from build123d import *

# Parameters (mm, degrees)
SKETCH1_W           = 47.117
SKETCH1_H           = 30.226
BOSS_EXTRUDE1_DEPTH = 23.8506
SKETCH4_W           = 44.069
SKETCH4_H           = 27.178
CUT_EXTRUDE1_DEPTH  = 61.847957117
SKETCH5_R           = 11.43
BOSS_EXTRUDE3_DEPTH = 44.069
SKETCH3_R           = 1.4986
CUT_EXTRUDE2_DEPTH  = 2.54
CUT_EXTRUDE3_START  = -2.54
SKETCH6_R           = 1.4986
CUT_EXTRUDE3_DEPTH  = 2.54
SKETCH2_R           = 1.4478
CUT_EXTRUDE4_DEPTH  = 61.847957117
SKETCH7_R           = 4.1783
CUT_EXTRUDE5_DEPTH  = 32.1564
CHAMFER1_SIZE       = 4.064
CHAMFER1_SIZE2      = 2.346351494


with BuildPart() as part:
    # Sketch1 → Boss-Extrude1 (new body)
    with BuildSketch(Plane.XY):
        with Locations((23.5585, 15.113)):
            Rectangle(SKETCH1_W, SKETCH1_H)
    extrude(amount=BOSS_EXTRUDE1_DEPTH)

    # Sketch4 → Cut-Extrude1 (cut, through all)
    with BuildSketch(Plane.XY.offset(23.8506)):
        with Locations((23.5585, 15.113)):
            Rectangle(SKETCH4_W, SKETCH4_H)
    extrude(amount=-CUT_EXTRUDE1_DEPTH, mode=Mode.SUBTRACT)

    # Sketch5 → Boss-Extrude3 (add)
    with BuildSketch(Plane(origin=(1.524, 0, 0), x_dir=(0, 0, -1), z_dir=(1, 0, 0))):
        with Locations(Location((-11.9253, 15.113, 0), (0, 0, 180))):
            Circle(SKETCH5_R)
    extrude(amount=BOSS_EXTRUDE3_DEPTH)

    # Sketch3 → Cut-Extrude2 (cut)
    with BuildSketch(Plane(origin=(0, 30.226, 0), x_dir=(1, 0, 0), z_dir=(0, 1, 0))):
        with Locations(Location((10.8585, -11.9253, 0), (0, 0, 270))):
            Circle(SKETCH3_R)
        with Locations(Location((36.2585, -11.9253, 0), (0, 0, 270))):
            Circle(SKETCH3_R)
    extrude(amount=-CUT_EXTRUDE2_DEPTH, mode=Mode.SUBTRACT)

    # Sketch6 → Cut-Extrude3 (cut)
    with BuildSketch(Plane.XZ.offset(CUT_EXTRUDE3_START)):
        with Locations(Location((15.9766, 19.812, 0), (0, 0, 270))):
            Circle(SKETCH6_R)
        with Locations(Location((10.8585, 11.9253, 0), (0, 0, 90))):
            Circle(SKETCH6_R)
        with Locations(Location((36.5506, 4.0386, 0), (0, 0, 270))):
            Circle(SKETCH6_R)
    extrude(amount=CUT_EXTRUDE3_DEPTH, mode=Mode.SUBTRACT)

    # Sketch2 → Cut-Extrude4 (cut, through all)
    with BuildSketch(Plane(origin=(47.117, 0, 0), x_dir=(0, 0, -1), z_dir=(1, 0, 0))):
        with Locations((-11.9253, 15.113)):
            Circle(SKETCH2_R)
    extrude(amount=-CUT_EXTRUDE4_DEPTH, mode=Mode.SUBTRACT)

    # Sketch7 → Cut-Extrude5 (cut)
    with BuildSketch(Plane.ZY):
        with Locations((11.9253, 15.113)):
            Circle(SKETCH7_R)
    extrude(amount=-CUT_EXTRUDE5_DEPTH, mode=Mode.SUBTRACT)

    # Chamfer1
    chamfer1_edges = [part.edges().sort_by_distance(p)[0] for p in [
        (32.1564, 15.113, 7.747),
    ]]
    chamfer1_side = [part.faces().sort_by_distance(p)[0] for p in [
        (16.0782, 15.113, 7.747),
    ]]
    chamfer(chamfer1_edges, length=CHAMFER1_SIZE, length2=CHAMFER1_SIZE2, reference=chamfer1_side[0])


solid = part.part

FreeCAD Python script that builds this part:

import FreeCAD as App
import Part
import Sketcher
Q = App.Units.Quantity


def edges_at(feature, points):
    """Names of the edges that pass closest to the given points."""
    edges = feature.Shape.Edges
    near = lambda p: min(range(len(edges)), key=lambda i: edges[i].distToShape(Part.Vertex(*p))[0])
    return sorted({f"Edge{near(p) + 1}" for p in points})


def add_polygon(sketch, points):
    """Adds a closed chain of lines whose ends are joined by coincident constraints."""
    first, n = sketch.GeometryCount, len(points)
    for a, b in zip(points, points[1:] + points[:1]):
        sketch.addGeometry(Part.LineSegment(App.Vector(*a, 0), App.Vector(*b, 0)), False)
    for i in range(n):
        sketch.addConstraint(Sketcher.Constraint("Coincident", first + i, 2, first + (i + 1) % n, 1))

doc = App.newDocument("Part")
body = doc.addObject("PartDesign::Body", "Body")

# Sketch on XY plane
sketch1 = body.newObject("Sketcher::SketchObject", "Sketch")
sketch1.AttachmentSupport = (doc.getObject("XY_Plane"), [""])
sketch1.MapMode = "FlatFace"
add_polygon(sketch1, [(0, 30.226), (0, 0), (47.117, 0), (47.117, 30.226)])  # lines 0-3
sketch1.addConstraint(Sketcher.Constraint("Vertical", 0))
sketch1.addConstraint(Sketcher.Constraint("Horizontal", 1))
sketch1.addConstraint(Sketcher.Constraint("Vertical", 2))
sketch1.addConstraint(Sketcher.Constraint("Horizontal", 3))
sketch1.addConstraint(Sketcher.Constraint("Coincident", 0, 2, -1, 1))
sketch1.addConstraint(Sketcher.Constraint("DistanceY", 0, 2, 0, 1, Q("1.19 in")))
sketch1.addConstraint(Sketcher.Constraint("DistanceX", 1, 1, 1, 2, Q("1.855 in")))
pad1 = body.newObject("PartDesign::Pad", "Pad")
pad1.Profile = sketch1
pad1.Length = Q("0.939 in")

# Sketch on XY plane
sketch2 = body.newObject("Sketcher::SketchObject", "Sketch001")
sketch2.AttachmentSupport = (doc.getObject("XY_Plane"), [""])
sketch2.MapMode = "FlatFace"
sketch2.AttachmentOffset = App.Placement(App.Vector(0, 0, 0.939 * 25.4), App.Rotation())
add_polygon(sketch2, [(1.524, 28.702), (1.524, 1.524), (45.593, 1.524), (45.593, 28.702)])  # lines 0-3
sketch2.addConstraint(Sketcher.Constraint("Vertical", 0))
sketch2.addConstraint(Sketcher.Constraint("Horizontal", 1))
sketch2.addConstraint(Sketcher.Constraint("Vertical", 2))
sketch2.addConstraint(Sketcher.Constraint("Horizontal", 3))
sketch2.addConstraint(Sketcher.Constraint("DistanceY", 0, 2, 0, 1, Q("1.07 in")))
sketch2.addConstraint(Sketcher.Constraint("DistanceX", 1, 1, 1, 2, Q("1.735 in")))
sketch2.addConstraint(Sketcher.Constraint("DistanceX", -1, 1, 0, 2, Q("0.06 in")))
sketch2.addConstraint(Sketcher.Constraint("DistanceY", -1, 1, 0, 2, Q("0.06 in")))
pocket1 = body.newObject("PartDesign::Pocket", "Pocket")
pocket1.Profile = sketch2
pocket1.Type = "ThroughAll"

# Sketch on YZ plane
sketch3 = body.newObject("Sketcher::SketchObject", "Sketch002")
sketch3.AttachmentSupport = (doc.getObject("YZ_Plane"), [""])
sketch3.MapMode = "FlatFace"
sketch3.AttachmentOffset = App.Placement(App.Vector(0, 0, 0.06 * 25.4), App.Rotation())
sketch3.addGeometry(Part.Circle(App.Vector(15.113, 11.9253, 0), App.Vector(0, 0, 1), 11.43), False)
sketch3.addConstraint(Sketcher.Constraint("Diameter", 0, Q("0.9 in")))
sketch3.addConstraint(Sketcher.Constraint("DistanceX", -1, 1, 0, 3, Q("0.595 in")))
sketch3.addConstraint(Sketcher.Constraint("DistanceY", -1, 1, 0, 3, Q("0.4695 in")))
pad2 = body.newObject("PartDesign::Pad", "Pad001")
pad2.Profile = sketch3
pad2.Length = Q("1.735 in")

# Sketch on XZ plane
sketch4 = body.newObject("Sketcher::SketchObject", "Sketch003")
sketch4.AttachmentSupport = (doc.getObject("XZ_Plane"), [""])
sketch4.MapMode = "FlatFace"
sketch4.AttachmentOffset = App.Placement(App.Vector(0, 0, -1.19 * 25.4), App.Rotation())
sketch4.addGeometry(Part.Circle(App.Vector(10.8585, 11.9253, 0), App.Vector(0, 0, 1), 1.4986), False)
sketch4.addGeometry(Part.Circle(App.Vector(36.2585, 11.9253, 0), App.Vector(0, 0, 1), 1.4986), False)
sketch4.addConstraint(Sketcher.Constraint("Equal", 0, 1))
sketch4.addConstraint(Sketcher.Constraint("Horizontal", 0, 3, 1, 3))
sketch4.addConstraint(Sketcher.Constraint("Diameter", 0, Q("0.118 in")))
sketch4.addConstraint(Sketcher.Constraint("DistanceX", 0, 3, 1, 3, Q("1 in")))
sketch4.addConstraint(Sketcher.Constraint("DistanceX", -1, 1, 0, 3, Q("0.4275 in")))
sketch4.addConstraint(Sketcher.Constraint("DistanceY", -1, 1, 0, 3, Q("0.4695 in")))
pocket2 = body.newObject("PartDesign::Pocket", "Pocket001")
pocket2.Profile = sketch4
pocket2.Length = Q("0.1 in")
pocket2.Reversed = True

# Sketch on XZ plane
sketch5 = body.newObject("Sketcher::SketchObject", "Sketch004")
sketch5.AttachmentSupport = (doc.getObject("XZ_Plane"), [""])
sketch5.MapMode = "FlatFace"
sketch5.AttachmentOffset = App.Placement(App.Vector(0, 0, -0.1 * 25.4), App.Rotation())
sketch5.addGeometry(Part.Circle(App.Vector(15.9766, 19.812, 0), App.Vector(0, 0, 1), 1.4986), False)
sketch5.addGeometry(Part.Circle(App.Vector(10.8585, 11.9253, 0), App.Vector(0, 0, 1), 1.4986), False)
sketch5.addGeometry(Part.Circle(App.Vector(36.5506, 4.0386, 0), App.Vector(0, 0, 1), 1.4986), False)
sketch5.addConstraint(Sketcher.Constraint("Equal", 0, 1))
sketch5.addConstraint(Sketcher.Constraint("Equal", 1, 2))
sketch5.addConstraint(Sketcher.Constraint("Diameter", 0, Q("0.118 in")))
sketch5.addConstraint(Sketcher.Constraint("DistanceY", -1, 1, 0, 3, Q("0.78 in")))
sketch5.addConstraint(Sketcher.Constraint("DistanceX", 0, 3, 2, 3, Q("0.81 in")))
sketch5.addConstraint(Sketcher.Constraint("DistanceX", -1, 1, 0, 3, Q("0.629 in")))
sketch5.addConstraint(Sketcher.Constraint("DistanceY", -1, 1, 2, 3, Q("0.159 in")))
sketch5.addConstraint(Sketcher.Constraint("DistanceX", -1, 1, 1, 3, Q("0.4275 in")))
sketch5.addConstraint(Sketcher.Constraint("DistanceY", -1, 1, 1, 3, Q("0.4695 in")))
pocket3 = body.newObject("PartDesign::Pocket", "Pocket002")
pocket3.Profile = sketch5
pocket3.Length = Q("0.1 in")
pocket3.Reversed = True

# Sketch on YZ plane
sketch6 = body.newObject("Sketcher::SketchObject", "Sketch005")
sketch6.AttachmentSupport = (doc.getObject("YZ_Plane"), [""])
sketch6.MapMode = "FlatFace"
sketch6.AttachmentOffset = App.Placement(App.Vector(0, 0, 1.855 * 25.4), App.Rotation())
sketch6.addGeometry(Part.Circle(App.Vector(15.113, 11.9253, 0), App.Vector(0, 0, 1), 1.4478), False)
sketch6.addConstraint(Sketcher.Constraint("Diameter", 0, Q("0.114 in")))
sketch6.addConstraint(Sketcher.Constraint("DistanceX", -1, 1, 0, 3, Q("0.595 in")))
sketch6.addConstraint(Sketcher.Constraint("DistanceY", -1, 1, 0, 3, Q("0.4695 in")))
pocket4 = body.newObject("PartDesign::Pocket", "Pocket003")
pocket4.Profile = sketch6
pocket4.Type = "ThroughAll"

# Sketch on YZ plane
sketch7 = body.newObject("Sketcher::SketchObject", "Sketch006")
sketch7.AttachmentSupport = (doc.getObject("YZ_Plane"), [""])
sketch7.MapMode = "FlatFace"
sketch7.addGeometry(Part.Circle(App.Vector(15.113, 11.9253, 0), App.Vector(0, 0, 1), 4.1783), False)
sketch7.addConstraint(Sketcher.Constraint("Diameter", 0, Q("0.329 in")))
sketch7.addConstraint(Sketcher.Constraint("DistanceX", -1, 1, 0, 3, Q("0.595 in")))
sketch7.addConstraint(Sketcher.Constraint("DistanceY", -1, 1, 0, 3, Q("0.4695 in")))
pocket5 = body.newObject("PartDesign::Pocket", "Pocket004")
pocket5.Profile = sketch7
pocket5.Length = Q("1.266 in")
pocket5.Reversed = True
doc.recompute()

chamfer = body.newObject("PartDesign::Chamfer", "Chamfer")
chamfer.Base = (pocket5, edges_at(pocket5, [(32.156, 15.113, 7.747)]))
chamfer.ChamferType = "Two distances"
chamfer.Size = Q("0.16 in")
chamfer.Size2 = 2.346351

doc.recompute()
